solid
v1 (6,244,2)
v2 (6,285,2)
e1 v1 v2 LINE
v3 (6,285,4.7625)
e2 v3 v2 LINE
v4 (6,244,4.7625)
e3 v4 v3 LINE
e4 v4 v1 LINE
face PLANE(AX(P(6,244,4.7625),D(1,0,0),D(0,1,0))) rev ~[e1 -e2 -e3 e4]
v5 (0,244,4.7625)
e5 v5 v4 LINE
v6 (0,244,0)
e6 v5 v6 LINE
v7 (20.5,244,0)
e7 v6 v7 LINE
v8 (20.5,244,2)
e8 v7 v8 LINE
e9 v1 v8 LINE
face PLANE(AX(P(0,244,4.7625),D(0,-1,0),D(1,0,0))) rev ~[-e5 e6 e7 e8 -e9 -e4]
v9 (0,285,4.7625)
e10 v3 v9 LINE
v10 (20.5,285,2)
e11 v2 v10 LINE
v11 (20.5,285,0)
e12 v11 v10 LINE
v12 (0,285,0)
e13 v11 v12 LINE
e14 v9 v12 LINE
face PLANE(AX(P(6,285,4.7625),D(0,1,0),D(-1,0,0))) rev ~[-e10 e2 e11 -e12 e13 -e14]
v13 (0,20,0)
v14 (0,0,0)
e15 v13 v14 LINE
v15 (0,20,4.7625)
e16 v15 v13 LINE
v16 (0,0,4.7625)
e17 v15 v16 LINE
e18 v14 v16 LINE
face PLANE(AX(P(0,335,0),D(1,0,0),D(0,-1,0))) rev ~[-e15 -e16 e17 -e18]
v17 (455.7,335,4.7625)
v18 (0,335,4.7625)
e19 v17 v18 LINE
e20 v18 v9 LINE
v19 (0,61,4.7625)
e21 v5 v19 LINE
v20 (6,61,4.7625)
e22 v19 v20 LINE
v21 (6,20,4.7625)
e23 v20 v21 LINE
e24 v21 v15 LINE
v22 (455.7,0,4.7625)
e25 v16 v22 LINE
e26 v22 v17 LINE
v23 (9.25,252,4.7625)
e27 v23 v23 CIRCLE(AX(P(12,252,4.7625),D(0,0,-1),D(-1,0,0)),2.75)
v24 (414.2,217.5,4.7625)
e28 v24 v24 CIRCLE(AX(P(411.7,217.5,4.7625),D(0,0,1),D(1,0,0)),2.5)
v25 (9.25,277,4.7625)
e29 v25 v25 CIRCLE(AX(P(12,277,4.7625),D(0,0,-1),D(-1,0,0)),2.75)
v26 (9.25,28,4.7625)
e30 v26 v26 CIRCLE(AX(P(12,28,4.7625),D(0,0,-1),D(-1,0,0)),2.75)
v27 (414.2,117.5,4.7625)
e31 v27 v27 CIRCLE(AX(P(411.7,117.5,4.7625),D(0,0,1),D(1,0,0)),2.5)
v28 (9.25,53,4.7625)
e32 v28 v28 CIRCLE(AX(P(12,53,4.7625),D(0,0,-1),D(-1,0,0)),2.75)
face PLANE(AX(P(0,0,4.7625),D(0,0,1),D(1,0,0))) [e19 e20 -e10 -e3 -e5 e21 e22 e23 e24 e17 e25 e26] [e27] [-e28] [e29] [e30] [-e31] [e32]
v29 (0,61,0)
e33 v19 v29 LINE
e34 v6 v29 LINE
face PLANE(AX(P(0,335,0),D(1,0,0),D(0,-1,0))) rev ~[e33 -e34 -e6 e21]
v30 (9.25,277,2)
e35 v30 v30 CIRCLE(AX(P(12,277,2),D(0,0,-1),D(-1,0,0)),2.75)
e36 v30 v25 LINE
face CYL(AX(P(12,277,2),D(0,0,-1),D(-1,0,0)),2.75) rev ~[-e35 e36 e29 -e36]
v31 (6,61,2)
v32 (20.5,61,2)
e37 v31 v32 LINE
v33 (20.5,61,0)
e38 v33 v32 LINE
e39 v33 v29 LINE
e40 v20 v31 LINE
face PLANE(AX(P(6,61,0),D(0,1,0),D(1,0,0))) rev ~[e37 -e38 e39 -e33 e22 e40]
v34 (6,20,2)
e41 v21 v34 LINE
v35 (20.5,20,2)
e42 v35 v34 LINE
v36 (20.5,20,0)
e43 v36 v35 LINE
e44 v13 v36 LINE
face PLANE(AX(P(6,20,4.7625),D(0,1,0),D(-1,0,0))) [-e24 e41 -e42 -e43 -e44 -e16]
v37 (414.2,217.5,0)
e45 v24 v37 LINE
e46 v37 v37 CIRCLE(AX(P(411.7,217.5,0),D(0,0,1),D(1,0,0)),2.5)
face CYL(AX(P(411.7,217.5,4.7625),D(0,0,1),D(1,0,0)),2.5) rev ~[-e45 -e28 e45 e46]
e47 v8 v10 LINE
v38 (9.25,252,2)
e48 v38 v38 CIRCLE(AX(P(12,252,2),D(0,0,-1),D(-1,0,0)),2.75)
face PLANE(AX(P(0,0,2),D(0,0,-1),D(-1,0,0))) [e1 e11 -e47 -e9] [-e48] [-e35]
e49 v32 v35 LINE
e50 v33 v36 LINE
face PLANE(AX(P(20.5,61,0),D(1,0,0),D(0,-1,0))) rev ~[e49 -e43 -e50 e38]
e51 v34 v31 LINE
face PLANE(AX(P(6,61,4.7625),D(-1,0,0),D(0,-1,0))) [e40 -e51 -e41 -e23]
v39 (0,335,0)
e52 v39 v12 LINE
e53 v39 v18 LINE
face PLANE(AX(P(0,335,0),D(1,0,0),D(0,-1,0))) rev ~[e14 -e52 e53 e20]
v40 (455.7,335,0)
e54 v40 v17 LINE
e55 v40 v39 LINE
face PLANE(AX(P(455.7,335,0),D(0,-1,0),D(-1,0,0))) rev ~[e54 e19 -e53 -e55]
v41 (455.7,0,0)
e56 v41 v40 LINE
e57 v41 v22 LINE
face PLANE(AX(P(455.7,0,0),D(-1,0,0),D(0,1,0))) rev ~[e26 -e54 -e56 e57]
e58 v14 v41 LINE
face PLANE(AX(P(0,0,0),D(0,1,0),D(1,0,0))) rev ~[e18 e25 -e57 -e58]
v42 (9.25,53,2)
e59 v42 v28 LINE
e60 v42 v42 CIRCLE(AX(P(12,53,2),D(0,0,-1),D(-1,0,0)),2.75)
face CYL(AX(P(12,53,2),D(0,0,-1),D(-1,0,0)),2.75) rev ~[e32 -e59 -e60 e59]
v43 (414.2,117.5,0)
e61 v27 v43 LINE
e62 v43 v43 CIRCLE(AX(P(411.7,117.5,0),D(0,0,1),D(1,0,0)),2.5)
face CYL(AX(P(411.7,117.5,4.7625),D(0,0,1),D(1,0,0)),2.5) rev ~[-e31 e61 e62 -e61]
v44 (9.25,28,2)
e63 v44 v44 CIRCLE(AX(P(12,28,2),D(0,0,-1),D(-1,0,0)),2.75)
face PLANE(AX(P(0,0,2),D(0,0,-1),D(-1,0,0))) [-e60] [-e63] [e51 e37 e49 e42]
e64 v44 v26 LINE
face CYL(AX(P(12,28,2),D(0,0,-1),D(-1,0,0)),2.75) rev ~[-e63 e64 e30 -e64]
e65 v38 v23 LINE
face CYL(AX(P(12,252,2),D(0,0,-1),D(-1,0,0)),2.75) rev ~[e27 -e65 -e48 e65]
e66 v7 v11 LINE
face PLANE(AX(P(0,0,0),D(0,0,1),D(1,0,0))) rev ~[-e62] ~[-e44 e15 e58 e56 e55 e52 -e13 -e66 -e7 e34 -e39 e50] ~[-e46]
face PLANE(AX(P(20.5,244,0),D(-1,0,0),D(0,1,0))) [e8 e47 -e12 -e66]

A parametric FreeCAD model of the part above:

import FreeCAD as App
import Part
import Sketcher
from FreeCAD import Vector


def add_polygon(sketch, points):
    """Adds a closed chain of lines whose ends are joined by coincident constraints."""
    first, n = sketch.GeometryCount, len(points)
    for a, b in zip(points, points[1:] + points[:1]):
        sketch.addGeometry(Part.LineSegment(App.Vector(*a, 0), App.Vector(*b, 0)), False)
    for i in range(n):
        sketch.addConstraint(Sketcher.Constraint("Coincident", first + i, 2, first + (i + 1) % n, 1))

doc = App.newDocument("Part")
body = doc.addObject("PartDesign::Body", "Body")

# Sketch on XY plane
sketch1 = doc.addObject("Sketcher::SketchObject", "Sketch")
body.addObject(sketch1)
sketch1.AttachmentSupport = (doc.XY_Plane, [""])
sketch1.MapMode = "FlatFace"
add_polygon(sketch1, [(0, 335), (0, 0), (456, 0), (456, 335)])  # lines 0-3
sketch1.addConstraint(Sketcher.Constraint("Vertical", 0))
sketch1.addConstraint(Sketcher.Constraint("Horizontal", 1))
sketch1.addConstraint(Sketcher.Constraint("Vertical", 2))
sketch1.addConstraint(Sketcher.Constraint("Horizontal", 3))
sketch1.addConstraint(Sketcher.Constraint("Coincident", 0, 2, -1, 1))
sketch1.addConstraint(Sketcher.Constraint("DistanceY", 0, 2, 0, 1, 335.0))
sketch1.addConstraint(Sketcher.Constraint("DistanceX", 1, 1, 1, 2, 455.7))
pad1 = doc.addObject("PartDesign::Pad", "Pad")
body.addObject(pad1)
pad1.Profile = sketch1
pad1.Length = 4.7625

# Sketch on XY plane
sketch2 = doc.addObject("Sketcher::SketchObject", "Sketch001")
body.addObject(sketch2)
sketch2.AttachmentSupport = (doc.XY_Plane, [""])
sketch2.MapMode = "FlatFace"
sketch2.AttachmentOffset = App.Placement(Vector(0, 0, 4.7625), App.Rotation())
add_polygon(sketch2, [(6, 285), (0, 285), (0, 244), (6, 244)])  # lines 0-3
add_polygon(sketch2, [(6, 61), (0, 61), (0, 20), (6, 20)])  # lines 4-7
sketch2.addConstraint(Sketcher.Constraint("Horizontal", 0))
sketch2.addConstraint(Sketcher.Constraint("Vertical", 1))
sketch2.addConstraint(Sketcher.Constraint("Horizontal", 2))
sketch2.addConstraint(Sketcher.Constraint("Vertical", 3))
sketch2.addConstraint(Sketcher.Constraint("Horizontal", 4))
sketch2.addConstraint(Sketcher.Constraint("Vertical", 5))
sketch2.addConstraint(Sketcher.Constraint("Horizontal", 6))
sketch2.addConstraint(Sketcher.Constraint("Vertical", 7))
sketch2.addConstraint(Sketcher.Constraint("PointOnObject", 0, 2, -2))
sketch2.addConstraint(Sketcher.Constraint("PointOnObject", 4, 2, -2))
sketch2.addConstraint(Sketcher.Constraint("Vertical", 3, 2, 6, 2))
sketch2.addConstraint(Sketcher.Constraint("Equal", 3, 5))
sketch2.addConstraint(Sketcher.Constraint("DistanceX", 0, 2, 0, 1, 6.0))
sketch2.addConstraint(Sketcher.Constraint("DistanceY", 1, 2, 1, 1, 41.0))
sketch2.addConstraint(Sketcher.Constraint("DistanceY", -1, 1, 5, 2, 20.0))
sketch2.addConstraint(Sketcher.Constraint("DistanceY", -1, 1, 0, 2, 285.0))
pocket1 = doc.addObject("PartDesign::Pocket", "Pocket")
body.addObject(pocket1)
pocket1.Profile = sketch2
pocket1.Type = "UpToFirst"

# Sketch on XY plane
sketch3 = doc.addObject("Sketcher::SketchObject", "Sketch002")
body.addObject(sketch3)
sketch3.AttachmentSupport = (doc.XY_Plane, [""])
sketch3.MapMode = "FlatFace"
add_polygon(sketch3, [(20, 244), (6, 244), (6, 285), (20, 285)])  # lines 0-3
add_polygon(sketch3, [(20, 20), (6, 20), (6, 61), (20, 61)])  # lines 4-7
sketch3.addConstraint(Sketcher.Constraint("Horizontal", 0))
sketch3.addConstraint(Sketcher.Constraint("Vertical", 1))
sketch3.addConstraint(Sketcher.Constraint("Horizontal", 2))
sketch3.addConstraint(Sketcher.Constraint("Vertical", 3))
sketch3.addConstraint(Sketcher.Constraint("Horizontal", 4))
sketch3.addConstraint(Sketcher.Constraint("Vertical", 5))
sketch3.addConstraint(Sketcher.Constraint("Horizontal", 6))
sketch3.addConstraint(Sketcher.Constraint("Vertical", 7))
sketch3.addConstraint(Sketcher.Constraint("Vertical", 1, 2, 4, 2))
sketch3.addConstraint(Sketcher.Constraint("Vertical", 3, 2, 6, 2))
sketch3.addConstraint(Sketcher.Constraint("Equal", 3, 5))
sketch3.addConstraint(Sketcher.Constraint("DistanceX", 0, 2, 0, 1, 14.5))
sketch3.addConstraint(Sketcher.Constraint("DistanceY", 1, 1, 1, 2, 41.0))
sketch3.addConstraint(Sketcher.Constraint("DistanceX", -1, 1, 0, 2, 6.0))
sketch3.addConstraint(Sketcher.Constraint("DistanceY", -1, 1, 0, 2, 244.0))
sketch3.addConstraint(Sketcher.Constraint("DistanceY", -1, 1, 4, 2, 20.0))
pocket2 = doc.addObject("PartDesign::Pocket", "Pocket001")
body.addObject(pocket2)
pocket2.Profile = sketch3
pocket2.Length = 2
pocket2.Reversed = True

# Sketch on XY plane
sketch4 = doc.addObject("Sketcher::SketchObject", "Sketch003")
body.addObject(sketch4)
sketch4.AttachmentSupport = (doc.XY_Plane, [""])
sketch4.MapMode = "FlatFace"
sketch4.AttachmentOffset = App.Placement(Vector(0, 0, 4.7625), App.Rotation())
sketch4.addGeometry(Part.Circle(Vector(411.7, 217.5, 0), Vector(0, 0, 1), 2.5), False)
sketch4.addGeometry(Part.Circle(Vector(411.7, 117.5, 0), Vector(0, 0, 1), 2.5), False)
sketch4.addConstraint(Sketcher.Constraint("Equal", 0, 1))
sketch4.addConstraint(Sketcher.Constraint("Vertical", 0, 3, 1, 3))
sketch4.addConstraint(Sketcher.Constraint("Diameter", 0, 5.0))
sketch4.addConstraint(Sketcher.Constraint("DistanceY", 1, 3, 0, 3, 100.0))
sketch4.addConstraint(Sketcher.Constraint("DistanceY", -1, 1, 1, 3, 117.5))
sketch4.addConstraint(Sketcher.Constraint("DistanceX", -1, 1, 0, 3, 411.7))
pocket3 = doc.addObject("PartDesign::Pocket", "Pocket002")
body.addObject(pocket3)
pocket3.Profile = sketch4
pocket3.Length = 4.7625

# Sketch on XY plane
sketch5 = doc.addObject("Sketcher::SketchObject", "Sketch004")
body.addObject(sketch5)
sketch5.AttachmentSupport = (doc.XY_Plane, [""])
sketch5.MapMode = "FlatFace"
sketch5.AttachmentOffset = App.Placement(Vector(0, 0, 2), App.Rotation())
sketch5.addGeometry(Part.Circle(Vector(12, 277, 0), Vector(0, 0, 1), 2.8), False)
sketch5.addGeometry(Part.Circle(Vector(12, 252, 0), Vector(0, 0, 1), 2.8), False)
sketch5.addGeometry(Part.Circle(Vector(12, 53, 0), Vector(0, 0, 1), 2.8), False)
sketch5.addGeometry(Part.Circle(Vector(12, 28, 0), Vector(0, 0, 1), 2.8), False)
sketch5.addConstraint(Sketcher.Constraint("Equal", 0, 1))
sketch5.addConstraint(Sketcher.Constraint("Equal", 1, 2))
sketch5.addConstraint(Sketcher.Constraint("Equal", 2, 3))
sketch5.addConstraint(Sketcher.Constraint("Vertical", 0, 3, 1, 3))
sketch5.addConstraint(Sketcher.Constraint("Vertical", 1, 3, 2, 3))
sketch5.addConstraint(Sketcher.Constraint("Vertical", 2, 3, 3, 3))
sketch5.addConstraint(Sketcher.Constraint("Diameter", 0, 5.5))
sketch5.addConstraint(Sketcher.Constraint("DistanceX", -1, 1, 0, 3, 12.0))
sketch5.addConstraint(Sketcher.Constraint("DistanceY", -1, 1, 0, 3, 277.0))
sketch5.addConstraint(Sketcher.Constraint("DistanceY", -1, 1, 1, 3, 252.0))
sketch5.addConstraint(Sketcher.Constraint("DistanceY", -1, 1, 2, 3, 53.0))
sketch5.addConstraint(Sketcher.Constraint("DistanceY", -1, 1, 3, 3, 28.0))
pocket4 = doc.addObject("PartDesign::Pocket", "Pocket003")
body.addObject(pocket4)
pocket4.Profile = sketch5
pocket4.Type = "UpToFirst"
pocket4.Reversed = True

doc.recompute()
